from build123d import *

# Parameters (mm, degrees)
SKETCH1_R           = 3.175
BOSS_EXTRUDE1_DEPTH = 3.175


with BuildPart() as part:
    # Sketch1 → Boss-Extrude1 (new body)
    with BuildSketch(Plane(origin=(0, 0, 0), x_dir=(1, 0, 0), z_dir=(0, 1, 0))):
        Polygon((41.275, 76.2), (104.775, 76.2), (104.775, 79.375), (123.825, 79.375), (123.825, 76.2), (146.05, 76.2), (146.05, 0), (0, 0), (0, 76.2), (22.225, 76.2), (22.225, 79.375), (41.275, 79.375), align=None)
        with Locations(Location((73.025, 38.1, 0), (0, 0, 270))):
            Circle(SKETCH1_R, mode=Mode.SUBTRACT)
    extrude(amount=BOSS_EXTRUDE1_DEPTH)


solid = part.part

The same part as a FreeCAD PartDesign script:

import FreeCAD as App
import Part
import Sketcher
from FreeCAD import Vector
Q = App.Units.Quantity

doc = App.newDocument("Part")
body = doc.addObject("PartDesign::Body", "Body")

# Sketch on XZ plane
sketch1 = doc.addObject("Sketcher::SketchObject", "Sketch")
body.addObject(sketch1)
sketch1.AttachmentSupport = (doc.XZ_Plane, [""])
sketch1.MapMode = "FlatFace"
sketch1.addGeometry([
    Part.LineSegment(Vector(104.8, -76.2, 0), Vector(41.3, -76.2, 0)),  # 0
    Part.LineSegment(Vector(41.3, -76.2, 0), Vector(41.3, -79.4, 0)),  # 1
    Part.LineSegment(Vector(41.3, -79.4, 0), Vector(22.2, -79.4, 0)),  # 2
    Part.LineSegment(Vector(22.2, -79.4, 0), Vector(22.2, -76.2, 0)),  # 3
    Part.LineSegment(Vector(22.2, -76.2, 0), Vector(0, -76.2, 0)),  # 4
    Part.LineSegment(Vector(0, -76.2, 0), Vector(0, 0, 0)),  # 5
    Part.LineSegment(Vector(0, 0, 0), Vector(146.1, 0, 0)),  # 6
    Part.LineSegment(Vector(146.1, 0, 0), Vector(146.1, -76.2, 0)),  # 7
    Part.LineSegment(Vector(146.1, -76.2, 0), Vector(123.8, -76.2, 0)),  # 8
    Part.LineSegment(Vector(123.8, -76.2, 0), Vector(123.8, -79.4, 0)),  # 9
    Part.LineSegment(Vector(123.8, -79.4, 0), Vector(104.8, -79.4, 0)),  # 10
    Part.LineSegment(Vector(104.8, -79.4, 0), Vector(104.8, -76.2, 0)),  # 11
    Part.Circle(Vector(73, -38.1, 0), Vector(0, 0, 1), 3.2),  # 12
], False)
sketch1.addConstraint([
    Sketcher.Constraint("Coincident", 0, 2, 1, 1),
    Sketcher.Constraint("Coincident", 1, 2, 2, 1),
    Sketcher.Constraint("Coincident", 2, 2, 3, 1),
    Sketcher.Constraint("Coincident", 3, 2, 4, 1),
    Sketcher.Constraint("Coincident", 4, 2, 5, 1),
    Sketcher.Constraint("Coincident", 5, 2, 6, 1),
    Sketcher.Constraint("Coincident", 6, 2, 7, 1),
    Sketcher.Constraint("Coincident", 7, 2, 8, 1),
    Sketcher.Constraint("Coincident", 8, 2, 9, 1),
    Sketcher.Constraint("Coincident", 9, 2, 10, 1),
    Sketcher.Constraint("Coincident", 10, 2, 11, 1),
    Sketcher.Constraint("Coincident", 11, 2, 0, 1),
    Sketcher.Constraint("Horizontal", 0),
    Sketcher.Constraint("Vertical", 1),
    Sketcher.Constraint("Horizontal", 2),
    Sketcher.Constraint("Vertical", 3),
    Sketcher.Constraint("Horizontal", 4),
    Sketcher.Constraint("Vertical", 5),
    Sketcher.Constraint("Horizontal", 6),
    Sketcher.Constraint("Vertical", 7),
    Sketcher.Constraint("Horizontal", 8),
    Sketcher.Constraint("Vertical", 9),
    Sketcher.Constraint("Horizontal", 10),
    Sketcher.Constraint("Vertical", 11),
    Sketcher.Constraint("Coincident", 5, 2, -1, 1),
    Sketcher.Constraint("Horizontal", 0, 2, 3, 2),
    Sketcher.Constraint("Horizontal", 4, 2, 7, 2),
    Sketcher.Constraint("Horizontal", 2, 2, 9, 2),
    Sketcher.Constraint("Equal", 4, 8),
    Sketcher.Constraint("Equal", 2, 10),
    Sketcher.Constraint("Diameter", 12, Q("0.25 in")),
    Sketcher.Constraint("DistanceY", 5, 1, 5, 2, Q("3 in")),
    Sketcher.Constraint("DistanceX", 0, 2, 0, 1, Q("2.5 in")),
    Sketcher.Constraint("DistanceX", 2, 2, 12, 3, Q("2 in")),
    Sketcher.Constraint("DistanceX", 12, 3, 8, 2, Q("2 in")),
    Sketcher.Constraint("DistanceX", 6, 1, 6, 2, Q("5.75 in")),
    Sketcher.Constraint("DistanceY", 12, 3, -1, 1, Q("1.5 in")),
    Sketcher.Constraint("DistanceY", 1, 2, 1, 1, Q("0.125 in")),
])
pad1 = doc.addObject("PartDesign::Pad", "Pad")
body.addObject(pad1)
pad1.Profile = sketch1
pad1.Length = Q("0.125 in")
pad1.Reversed = True

doc.recompute()
